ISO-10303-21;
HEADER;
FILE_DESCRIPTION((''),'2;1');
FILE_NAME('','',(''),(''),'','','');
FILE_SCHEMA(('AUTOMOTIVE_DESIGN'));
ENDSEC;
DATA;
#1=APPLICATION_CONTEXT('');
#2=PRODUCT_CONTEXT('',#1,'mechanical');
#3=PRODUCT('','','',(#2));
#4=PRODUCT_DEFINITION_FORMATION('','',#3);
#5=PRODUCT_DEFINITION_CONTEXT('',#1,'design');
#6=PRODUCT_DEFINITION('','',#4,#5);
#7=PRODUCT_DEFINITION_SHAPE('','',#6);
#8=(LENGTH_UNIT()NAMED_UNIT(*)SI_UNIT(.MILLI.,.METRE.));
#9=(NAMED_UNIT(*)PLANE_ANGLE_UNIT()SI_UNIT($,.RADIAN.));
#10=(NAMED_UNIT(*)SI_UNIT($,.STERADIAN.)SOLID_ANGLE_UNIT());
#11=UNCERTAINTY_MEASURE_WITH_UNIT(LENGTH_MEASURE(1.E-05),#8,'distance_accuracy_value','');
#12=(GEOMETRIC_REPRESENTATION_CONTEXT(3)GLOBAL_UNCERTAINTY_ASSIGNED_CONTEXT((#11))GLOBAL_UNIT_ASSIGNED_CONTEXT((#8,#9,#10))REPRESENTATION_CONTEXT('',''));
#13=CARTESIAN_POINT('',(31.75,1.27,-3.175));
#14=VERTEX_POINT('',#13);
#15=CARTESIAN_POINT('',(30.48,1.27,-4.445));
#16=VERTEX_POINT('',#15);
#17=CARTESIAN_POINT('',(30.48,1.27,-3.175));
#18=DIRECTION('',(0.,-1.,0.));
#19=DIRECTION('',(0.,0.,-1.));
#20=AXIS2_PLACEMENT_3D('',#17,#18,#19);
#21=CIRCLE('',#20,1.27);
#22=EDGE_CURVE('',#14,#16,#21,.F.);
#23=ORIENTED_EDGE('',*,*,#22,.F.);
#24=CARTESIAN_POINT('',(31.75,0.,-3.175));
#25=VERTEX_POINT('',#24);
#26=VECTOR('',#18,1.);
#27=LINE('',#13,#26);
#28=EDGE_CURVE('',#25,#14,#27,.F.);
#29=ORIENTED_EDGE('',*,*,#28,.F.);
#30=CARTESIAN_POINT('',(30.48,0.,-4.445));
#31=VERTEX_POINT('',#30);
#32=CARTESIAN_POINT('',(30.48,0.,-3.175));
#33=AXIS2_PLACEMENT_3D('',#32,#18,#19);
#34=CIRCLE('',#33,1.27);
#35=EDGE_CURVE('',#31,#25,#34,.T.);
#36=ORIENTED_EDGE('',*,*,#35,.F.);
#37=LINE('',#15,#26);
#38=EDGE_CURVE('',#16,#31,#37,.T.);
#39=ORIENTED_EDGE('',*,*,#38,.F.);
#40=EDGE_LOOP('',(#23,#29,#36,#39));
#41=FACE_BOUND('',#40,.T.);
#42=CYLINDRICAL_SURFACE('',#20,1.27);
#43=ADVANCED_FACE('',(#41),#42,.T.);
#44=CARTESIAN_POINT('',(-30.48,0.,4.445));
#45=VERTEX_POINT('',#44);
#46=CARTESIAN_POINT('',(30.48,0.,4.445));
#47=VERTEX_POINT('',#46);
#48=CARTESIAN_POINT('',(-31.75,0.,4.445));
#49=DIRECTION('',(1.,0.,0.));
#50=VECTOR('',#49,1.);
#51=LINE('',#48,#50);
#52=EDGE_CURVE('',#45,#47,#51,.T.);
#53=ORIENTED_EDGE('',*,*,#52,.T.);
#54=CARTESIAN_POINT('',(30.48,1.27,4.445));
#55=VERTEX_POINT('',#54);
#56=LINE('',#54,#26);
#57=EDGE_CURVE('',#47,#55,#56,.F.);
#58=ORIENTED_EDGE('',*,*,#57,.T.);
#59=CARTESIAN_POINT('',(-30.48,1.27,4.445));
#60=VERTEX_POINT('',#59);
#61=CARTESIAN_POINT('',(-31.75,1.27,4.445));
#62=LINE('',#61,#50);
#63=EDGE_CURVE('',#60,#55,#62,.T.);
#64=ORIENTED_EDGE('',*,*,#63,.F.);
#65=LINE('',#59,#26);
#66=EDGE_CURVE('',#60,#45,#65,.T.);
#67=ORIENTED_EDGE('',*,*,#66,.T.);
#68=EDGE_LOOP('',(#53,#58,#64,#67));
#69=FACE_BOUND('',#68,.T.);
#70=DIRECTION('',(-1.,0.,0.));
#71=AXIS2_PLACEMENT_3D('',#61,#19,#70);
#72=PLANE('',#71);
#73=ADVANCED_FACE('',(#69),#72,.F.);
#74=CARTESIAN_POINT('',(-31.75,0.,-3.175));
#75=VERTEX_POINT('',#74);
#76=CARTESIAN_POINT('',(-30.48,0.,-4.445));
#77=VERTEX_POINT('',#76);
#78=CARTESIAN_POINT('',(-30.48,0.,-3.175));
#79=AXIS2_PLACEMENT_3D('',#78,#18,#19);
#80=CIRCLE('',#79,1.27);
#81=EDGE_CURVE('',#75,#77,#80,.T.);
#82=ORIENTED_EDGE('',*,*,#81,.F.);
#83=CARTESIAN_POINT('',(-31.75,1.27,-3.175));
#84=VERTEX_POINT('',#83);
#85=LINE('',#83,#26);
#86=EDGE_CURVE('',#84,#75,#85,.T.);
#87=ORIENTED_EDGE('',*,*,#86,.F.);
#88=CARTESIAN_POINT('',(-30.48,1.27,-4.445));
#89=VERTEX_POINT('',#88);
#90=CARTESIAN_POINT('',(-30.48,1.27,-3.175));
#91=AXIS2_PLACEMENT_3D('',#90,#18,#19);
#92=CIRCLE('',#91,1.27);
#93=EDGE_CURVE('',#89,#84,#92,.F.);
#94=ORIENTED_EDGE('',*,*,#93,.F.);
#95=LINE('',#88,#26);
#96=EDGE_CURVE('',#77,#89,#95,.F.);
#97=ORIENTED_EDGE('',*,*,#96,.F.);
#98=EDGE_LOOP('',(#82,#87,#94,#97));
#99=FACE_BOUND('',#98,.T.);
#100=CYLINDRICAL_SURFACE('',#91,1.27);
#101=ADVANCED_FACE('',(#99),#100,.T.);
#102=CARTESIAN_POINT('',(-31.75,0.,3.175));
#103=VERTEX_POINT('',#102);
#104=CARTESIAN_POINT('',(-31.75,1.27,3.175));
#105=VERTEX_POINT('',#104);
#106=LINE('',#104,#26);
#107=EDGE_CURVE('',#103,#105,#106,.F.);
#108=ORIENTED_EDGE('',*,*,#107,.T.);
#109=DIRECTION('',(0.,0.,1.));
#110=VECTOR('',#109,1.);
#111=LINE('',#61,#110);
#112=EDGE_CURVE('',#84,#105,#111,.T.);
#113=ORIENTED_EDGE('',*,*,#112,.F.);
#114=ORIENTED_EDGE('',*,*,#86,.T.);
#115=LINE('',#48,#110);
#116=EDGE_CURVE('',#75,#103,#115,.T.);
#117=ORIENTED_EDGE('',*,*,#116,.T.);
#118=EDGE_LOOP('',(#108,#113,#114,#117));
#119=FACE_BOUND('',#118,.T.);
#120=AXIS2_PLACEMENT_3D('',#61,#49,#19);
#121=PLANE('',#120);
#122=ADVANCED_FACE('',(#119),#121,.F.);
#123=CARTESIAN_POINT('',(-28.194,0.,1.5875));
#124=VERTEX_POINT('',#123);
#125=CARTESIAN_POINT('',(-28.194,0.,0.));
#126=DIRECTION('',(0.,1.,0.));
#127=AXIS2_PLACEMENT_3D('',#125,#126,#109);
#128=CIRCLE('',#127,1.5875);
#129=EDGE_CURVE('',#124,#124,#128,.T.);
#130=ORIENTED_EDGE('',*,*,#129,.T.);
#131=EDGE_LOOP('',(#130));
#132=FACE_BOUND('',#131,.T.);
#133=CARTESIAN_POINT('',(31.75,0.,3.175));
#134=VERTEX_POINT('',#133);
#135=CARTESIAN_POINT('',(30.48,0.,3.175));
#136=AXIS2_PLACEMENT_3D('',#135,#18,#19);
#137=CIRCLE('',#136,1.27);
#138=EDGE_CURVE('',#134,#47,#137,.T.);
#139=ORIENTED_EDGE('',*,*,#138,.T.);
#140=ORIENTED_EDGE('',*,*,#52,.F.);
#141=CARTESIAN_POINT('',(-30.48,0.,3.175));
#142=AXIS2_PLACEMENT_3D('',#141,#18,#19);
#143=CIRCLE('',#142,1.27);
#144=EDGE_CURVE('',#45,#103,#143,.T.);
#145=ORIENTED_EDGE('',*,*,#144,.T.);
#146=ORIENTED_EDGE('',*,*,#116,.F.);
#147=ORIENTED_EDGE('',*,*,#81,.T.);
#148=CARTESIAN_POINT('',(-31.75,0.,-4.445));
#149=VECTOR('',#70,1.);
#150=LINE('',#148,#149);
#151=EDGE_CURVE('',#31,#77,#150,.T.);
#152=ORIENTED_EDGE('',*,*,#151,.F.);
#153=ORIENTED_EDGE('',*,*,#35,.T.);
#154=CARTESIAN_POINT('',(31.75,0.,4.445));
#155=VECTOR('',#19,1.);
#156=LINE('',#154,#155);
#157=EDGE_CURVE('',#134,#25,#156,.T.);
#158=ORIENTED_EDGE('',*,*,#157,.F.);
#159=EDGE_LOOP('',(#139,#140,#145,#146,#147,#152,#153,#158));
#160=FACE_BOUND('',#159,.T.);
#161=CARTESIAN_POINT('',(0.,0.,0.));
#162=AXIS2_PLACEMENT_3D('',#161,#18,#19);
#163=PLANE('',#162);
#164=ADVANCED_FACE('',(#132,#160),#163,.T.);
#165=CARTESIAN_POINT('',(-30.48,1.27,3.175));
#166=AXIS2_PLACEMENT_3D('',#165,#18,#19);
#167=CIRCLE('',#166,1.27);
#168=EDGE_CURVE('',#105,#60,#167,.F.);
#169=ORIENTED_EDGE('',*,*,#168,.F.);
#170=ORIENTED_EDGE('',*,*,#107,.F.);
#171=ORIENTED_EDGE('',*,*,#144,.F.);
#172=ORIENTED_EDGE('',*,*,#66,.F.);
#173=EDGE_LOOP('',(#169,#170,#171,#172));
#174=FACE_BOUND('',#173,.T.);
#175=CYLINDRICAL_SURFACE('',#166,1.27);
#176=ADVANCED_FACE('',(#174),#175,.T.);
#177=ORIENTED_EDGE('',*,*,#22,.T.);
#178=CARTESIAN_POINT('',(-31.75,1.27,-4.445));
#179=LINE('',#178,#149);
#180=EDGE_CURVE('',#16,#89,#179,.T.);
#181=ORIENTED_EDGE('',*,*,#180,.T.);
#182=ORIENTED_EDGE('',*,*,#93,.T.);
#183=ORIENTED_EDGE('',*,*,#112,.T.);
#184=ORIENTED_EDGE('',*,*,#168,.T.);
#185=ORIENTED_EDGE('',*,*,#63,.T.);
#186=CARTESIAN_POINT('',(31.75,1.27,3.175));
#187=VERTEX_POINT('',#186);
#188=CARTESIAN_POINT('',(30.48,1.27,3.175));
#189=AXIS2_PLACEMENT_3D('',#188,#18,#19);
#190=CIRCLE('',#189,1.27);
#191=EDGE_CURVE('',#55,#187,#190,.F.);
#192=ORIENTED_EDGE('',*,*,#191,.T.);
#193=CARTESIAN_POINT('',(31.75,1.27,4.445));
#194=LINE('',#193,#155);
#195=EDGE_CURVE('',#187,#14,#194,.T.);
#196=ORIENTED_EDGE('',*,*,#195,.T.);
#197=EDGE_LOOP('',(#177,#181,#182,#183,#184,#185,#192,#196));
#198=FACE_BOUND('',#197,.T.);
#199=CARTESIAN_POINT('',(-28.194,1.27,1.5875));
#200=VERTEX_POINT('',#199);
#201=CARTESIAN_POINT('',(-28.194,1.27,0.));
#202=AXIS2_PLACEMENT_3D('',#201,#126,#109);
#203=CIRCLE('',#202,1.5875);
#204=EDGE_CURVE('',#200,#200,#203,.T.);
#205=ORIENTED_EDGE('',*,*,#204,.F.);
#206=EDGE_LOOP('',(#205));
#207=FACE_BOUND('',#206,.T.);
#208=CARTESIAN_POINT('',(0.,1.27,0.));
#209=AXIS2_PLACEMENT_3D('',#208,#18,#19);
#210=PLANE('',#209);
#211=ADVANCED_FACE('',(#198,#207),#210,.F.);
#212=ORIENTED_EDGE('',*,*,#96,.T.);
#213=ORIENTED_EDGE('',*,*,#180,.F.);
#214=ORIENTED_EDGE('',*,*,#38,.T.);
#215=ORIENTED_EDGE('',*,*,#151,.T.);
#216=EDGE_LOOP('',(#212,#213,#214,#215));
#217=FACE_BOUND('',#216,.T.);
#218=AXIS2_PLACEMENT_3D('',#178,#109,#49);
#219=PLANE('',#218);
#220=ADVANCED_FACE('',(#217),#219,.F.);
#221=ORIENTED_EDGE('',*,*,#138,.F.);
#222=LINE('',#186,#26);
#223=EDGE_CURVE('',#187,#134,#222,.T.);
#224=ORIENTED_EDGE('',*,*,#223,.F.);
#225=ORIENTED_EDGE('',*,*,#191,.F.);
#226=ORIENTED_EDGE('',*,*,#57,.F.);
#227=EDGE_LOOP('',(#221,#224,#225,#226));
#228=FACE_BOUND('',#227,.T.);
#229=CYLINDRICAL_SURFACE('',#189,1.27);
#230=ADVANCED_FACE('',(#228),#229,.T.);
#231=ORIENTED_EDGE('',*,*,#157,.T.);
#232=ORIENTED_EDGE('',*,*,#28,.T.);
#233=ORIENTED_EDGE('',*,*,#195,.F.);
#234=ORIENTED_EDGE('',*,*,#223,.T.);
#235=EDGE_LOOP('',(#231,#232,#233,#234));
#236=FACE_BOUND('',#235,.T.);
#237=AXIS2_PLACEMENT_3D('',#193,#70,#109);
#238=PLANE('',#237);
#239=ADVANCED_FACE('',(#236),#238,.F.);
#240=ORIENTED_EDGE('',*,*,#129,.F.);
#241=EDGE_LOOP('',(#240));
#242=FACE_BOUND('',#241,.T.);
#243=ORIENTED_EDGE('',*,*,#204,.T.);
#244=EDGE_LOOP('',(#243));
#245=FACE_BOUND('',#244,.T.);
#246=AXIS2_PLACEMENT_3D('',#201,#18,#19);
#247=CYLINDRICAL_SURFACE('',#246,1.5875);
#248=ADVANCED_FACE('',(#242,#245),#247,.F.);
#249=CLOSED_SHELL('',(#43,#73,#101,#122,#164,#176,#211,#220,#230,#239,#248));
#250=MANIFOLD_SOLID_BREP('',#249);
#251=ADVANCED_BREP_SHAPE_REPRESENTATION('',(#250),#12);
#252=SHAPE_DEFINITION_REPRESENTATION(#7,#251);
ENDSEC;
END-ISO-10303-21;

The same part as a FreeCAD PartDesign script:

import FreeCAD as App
import Part
import Sketcher
Q = App.Units.Quantity


def edges_at(feature, points):
    """Names of the edges that pass closest to the given points."""
    edges = feature.Shape.Edges
    near = lambda p: min(range(len(edges)), key=lambda i: edges[i].distToShape(Part.Vertex(*p))[0])
    return sorted({f"Edge{near(p) + 1}" for p in points})

doc = App.newDocument("Part")
body = doc.addObject("PartDesign::Body", "Body")

sketch1 = body.newObject("Sketcher::SketchObject", "Sketch")
sketch1.AttachmentSupport = (doc.getObject("XZ_Plane"), [""])
sketch1.MapMode = "FlatFace"
sketch1.addGeometry([
    Part.LineSegment(App.Vector(-31.8, -4.4, 0), App.Vector(-31.8, 4.4, 0)),
    Part.LineSegment(App.Vector(-31.8, 4.4, 0), App.Vector(31.8, 4.4, 0)),
    Part.LineSegment(App.Vector(31.8, 4.4, 0), App.Vector(31.8, -4.4, 0)),
    Part.LineSegment(App.Vector(31.8, -4.4, 0), App.Vector(-31.8, -4.4, 0)),
    Part.Circle(App.Vector(-28.2, 0, 0), App.Vector(0, 0, 1), 1.6),
], False)
sketch1.addConstraint([
    Sketcher.Constraint("Coincident", 0, 2, 1, 1),
    Sketcher.Constraint("Coincident", 1, 2, 2, 1),
    Sketcher.Constraint("Coincident", 2, 2, 3, 1),
    Sketcher.Constraint("Coincident", 3, 2, 0, 1),
    Sketcher.Constraint("Vertical", 0),
    Sketcher.Constraint("Horizontal", 1),
    Sketcher.Constraint("Vertical", 2),
    Sketcher.Constraint("Horizontal", 3),
    Sketcher.Constraint("Symmetric", 0, 2, 2, 2, -1, 1),
    Sketcher.Constraint("PointOnObject", 4, 3, -1),
    Sketcher.Constraint("Diameter", 4, Q("0.125 in")),
    Sketcher.Constraint("DistanceX", 1, 1, 1, 2, Q("2.5 in")),
    Sketcher.Constraint("DistanceY", 0, 1, 0, 2, Q("0.35 in")),
    Sketcher.Constraint("DistanceX", 4, 3, -1, 1, Q("1.11 in")),
])
pad1 = body.newObject("PartDesign::Pad", "Pad")
pad1.Profile = sketch1
pad1.Length = Q("0.05 in")
pad1.Reversed = True
doc.recompute()

fillet = body.newObject("PartDesign::Fillet", "Fillet")
fillet.Base = (pad1, edges_at(pad1, [
    (31.75, 0.635, 4.445),
    (-31.75, 0.635, 4.445),
    (-31.75, 0.635, -4.445),
    (31.75, 0.635, -4.445),
]))
fillet.Radius = Q("0.05 in")

doc.recompute()
